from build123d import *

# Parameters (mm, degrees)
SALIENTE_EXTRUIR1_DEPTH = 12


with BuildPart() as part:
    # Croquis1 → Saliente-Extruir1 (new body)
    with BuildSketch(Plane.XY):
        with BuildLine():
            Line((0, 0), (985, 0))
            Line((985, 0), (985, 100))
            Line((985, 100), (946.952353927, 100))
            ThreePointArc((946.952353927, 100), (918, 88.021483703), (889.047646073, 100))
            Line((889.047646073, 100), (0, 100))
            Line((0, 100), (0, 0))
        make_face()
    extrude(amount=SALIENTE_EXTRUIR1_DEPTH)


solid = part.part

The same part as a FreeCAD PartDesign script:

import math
import FreeCAD as App
import Part
import Sketcher
Q = App.Units.Quantity

doc = App.newDocument("Part")
params = doc.addObject("Spreadsheet::Sheet", "Params")
for row, (alias, value) in enumerate([
    ("sketch1_width", "985 mm"),
    ("sketch1_height", "100 mm"),
    ("pad1_length", "12 mm"),
], start=1):
    params.set(f"A{row}", alias)
    params.set(f"B{row}", "=" + value)
    params.setAlias(f"B{row}", alias)

body = doc.addObject("PartDesign::Body", "Body")

# Sketch on XY plane
sketch1 = doc.addObject("Sketcher::SketchObject", "Sketch")
body.addObject(sketch1)
sketch1.AttachmentSupport = (doc.XY_Plane, [""])
sketch1.MapMode = "FlatFace"
sketch1.addGeometry([
    Part.LineSegment(App.Vector(0, 0, 0), App.Vector(985, 0, 0)),  # 0
    Part.LineSegment(App.Vector(985, 0, 0), App.Vector(985, 100, 0)),  # 1
    Part.LineSegment(App.Vector(985, 100, 0), App.Vector(947, 100, 0)),  # 2
    Part.ArcOfCircle(Part.Circle(App.Vector(918, 129, 0), App.Vector(0, 0, 1), 41), math.radians(-135), math.radians(-45)),  # 3
    Part.LineSegment(App.Vector(889, 100, 0), App.Vector(0, 100, 0)),  # 4
    Part.LineSegment(App.Vector(0, 100, 0), App.Vector(0, 0, 0)),  # 5
], False)
sketch1.addConstraint([
    Sketcher.Constraint("Coincident", 0, 2, 1, 1),
    Sketcher.Constraint("Coincident", 1, 2, 2, 1),
    Sketcher.Constraint("Coincident", 2, 2, 3, 2),
    Sketcher.Constraint("Coincident", 3, 1, 4, 1),
    Sketcher.Constraint("Coincident", 4, 2, 5, 1),
    Sketcher.Constraint("Coincident", 5, 2, 0, 1),
    Sketcher.Constraint("Horizontal", 0),
    Sketcher.Constraint("Vertical", 1),
    Sketcher.Constraint("Horizontal", 2),
    Sketcher.Constraint("Horizontal", 4),
    Sketcher.Constraint("Vertical", 5),
    Sketcher.Constraint("Coincident", 5, 2, -1, 1),
    Sketcher.Constraint("Horizontal", 2, 2, 3, 1),
    Sketcher.Constraint("DistanceX", 0, 1, 0, 2, Q("985 mm")),
    Sketcher.Constraint("DistanceY", 1, 1, 1, 2, Q("100 mm")),
    Sketcher.Constraint("DistanceX", -1, 1, 3, 3, Q("918 mm")),
    Sketcher.Constraint("DistanceY", -1, 1, 3, 3, Q("129 mm")),
    Sketcher.Constraint("Radius", 3, Q("40.978516 mm")),
])
sketch1.setExpression("Constraints[13]", "Params.sketch1_width")
sketch1.setExpression("Constraints[14]", "Params.sketch1_height")
pad1 = doc.addObject("PartDesign::Pad", "Pad")
body.addObject(pad1)
pad1.Profile = sketch1
pad1.setExpression("Length", "Params.pad1_length")

doc.recompute()
